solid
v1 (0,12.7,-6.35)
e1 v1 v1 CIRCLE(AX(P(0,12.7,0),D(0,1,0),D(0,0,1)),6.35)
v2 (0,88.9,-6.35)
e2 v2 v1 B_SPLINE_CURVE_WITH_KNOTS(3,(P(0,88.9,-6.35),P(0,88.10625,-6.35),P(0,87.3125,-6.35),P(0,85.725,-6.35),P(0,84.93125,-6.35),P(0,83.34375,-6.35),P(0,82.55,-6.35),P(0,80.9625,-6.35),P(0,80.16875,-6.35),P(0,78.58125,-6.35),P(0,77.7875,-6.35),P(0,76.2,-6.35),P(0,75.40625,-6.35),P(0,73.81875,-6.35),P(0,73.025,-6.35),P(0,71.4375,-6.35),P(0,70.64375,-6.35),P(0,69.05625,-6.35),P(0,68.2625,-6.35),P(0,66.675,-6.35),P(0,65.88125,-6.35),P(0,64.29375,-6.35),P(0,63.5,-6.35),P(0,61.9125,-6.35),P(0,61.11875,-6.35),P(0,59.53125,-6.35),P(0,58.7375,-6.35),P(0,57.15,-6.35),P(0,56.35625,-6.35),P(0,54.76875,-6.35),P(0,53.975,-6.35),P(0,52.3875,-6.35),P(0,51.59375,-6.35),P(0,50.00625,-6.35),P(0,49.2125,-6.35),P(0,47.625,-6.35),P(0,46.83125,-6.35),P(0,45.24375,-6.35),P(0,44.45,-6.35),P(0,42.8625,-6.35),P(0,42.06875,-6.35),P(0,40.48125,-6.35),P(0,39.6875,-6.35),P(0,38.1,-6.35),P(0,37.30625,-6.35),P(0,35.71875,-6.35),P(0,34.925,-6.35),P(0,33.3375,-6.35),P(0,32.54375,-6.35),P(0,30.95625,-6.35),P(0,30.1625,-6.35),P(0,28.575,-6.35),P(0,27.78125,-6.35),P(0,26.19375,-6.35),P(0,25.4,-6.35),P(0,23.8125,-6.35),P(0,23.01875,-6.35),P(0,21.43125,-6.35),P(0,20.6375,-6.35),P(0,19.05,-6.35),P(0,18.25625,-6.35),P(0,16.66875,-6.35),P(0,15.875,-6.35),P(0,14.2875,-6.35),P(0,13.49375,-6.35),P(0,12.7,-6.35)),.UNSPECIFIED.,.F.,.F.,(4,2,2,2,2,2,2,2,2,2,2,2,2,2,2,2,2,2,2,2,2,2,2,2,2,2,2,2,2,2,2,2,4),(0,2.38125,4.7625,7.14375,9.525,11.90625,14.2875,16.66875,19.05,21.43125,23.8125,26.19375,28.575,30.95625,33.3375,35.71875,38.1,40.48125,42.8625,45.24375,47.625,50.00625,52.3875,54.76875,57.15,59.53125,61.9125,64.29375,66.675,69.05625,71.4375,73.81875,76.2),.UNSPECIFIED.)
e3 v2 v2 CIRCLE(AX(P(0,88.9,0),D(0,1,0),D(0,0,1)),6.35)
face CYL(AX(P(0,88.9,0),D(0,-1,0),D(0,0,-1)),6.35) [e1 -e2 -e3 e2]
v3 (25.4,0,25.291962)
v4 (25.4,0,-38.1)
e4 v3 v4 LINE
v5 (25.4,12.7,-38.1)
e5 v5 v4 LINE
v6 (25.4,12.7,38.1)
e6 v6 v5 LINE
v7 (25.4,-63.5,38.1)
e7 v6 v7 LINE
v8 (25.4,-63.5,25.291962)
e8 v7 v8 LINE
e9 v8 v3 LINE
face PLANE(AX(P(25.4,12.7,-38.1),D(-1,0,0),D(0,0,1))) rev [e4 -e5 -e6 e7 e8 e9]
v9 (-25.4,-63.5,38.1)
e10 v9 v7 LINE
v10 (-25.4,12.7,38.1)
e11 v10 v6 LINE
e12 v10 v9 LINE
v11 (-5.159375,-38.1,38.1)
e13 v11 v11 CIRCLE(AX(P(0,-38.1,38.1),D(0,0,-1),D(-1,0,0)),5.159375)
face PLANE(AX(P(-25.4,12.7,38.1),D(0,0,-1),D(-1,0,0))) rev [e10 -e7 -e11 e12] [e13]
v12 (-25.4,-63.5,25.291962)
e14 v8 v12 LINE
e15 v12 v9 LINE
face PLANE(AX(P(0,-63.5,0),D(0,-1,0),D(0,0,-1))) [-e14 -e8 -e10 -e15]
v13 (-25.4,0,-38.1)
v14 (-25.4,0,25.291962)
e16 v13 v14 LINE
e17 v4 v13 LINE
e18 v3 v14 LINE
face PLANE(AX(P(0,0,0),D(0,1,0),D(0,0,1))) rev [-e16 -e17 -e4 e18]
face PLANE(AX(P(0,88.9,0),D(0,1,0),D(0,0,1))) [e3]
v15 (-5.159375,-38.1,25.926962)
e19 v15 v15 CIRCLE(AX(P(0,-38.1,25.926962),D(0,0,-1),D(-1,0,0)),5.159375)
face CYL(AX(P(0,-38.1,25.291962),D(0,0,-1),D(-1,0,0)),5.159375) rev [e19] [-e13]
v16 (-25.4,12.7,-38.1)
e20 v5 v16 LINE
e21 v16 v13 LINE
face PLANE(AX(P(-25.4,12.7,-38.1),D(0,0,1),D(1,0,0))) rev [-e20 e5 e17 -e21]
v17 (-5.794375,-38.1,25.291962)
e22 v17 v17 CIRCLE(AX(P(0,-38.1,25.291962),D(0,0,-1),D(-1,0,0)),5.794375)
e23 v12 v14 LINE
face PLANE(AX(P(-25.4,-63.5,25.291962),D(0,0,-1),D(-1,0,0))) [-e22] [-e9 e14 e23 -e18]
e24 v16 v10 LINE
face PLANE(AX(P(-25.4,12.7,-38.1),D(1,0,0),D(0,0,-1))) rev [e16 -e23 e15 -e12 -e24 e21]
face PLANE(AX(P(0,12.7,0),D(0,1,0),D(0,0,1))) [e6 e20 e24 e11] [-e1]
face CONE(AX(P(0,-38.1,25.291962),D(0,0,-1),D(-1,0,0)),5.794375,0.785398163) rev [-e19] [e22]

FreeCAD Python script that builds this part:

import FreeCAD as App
import Part
import Sketcher

V = App.Vector
Q = App.Units.Quantity

doc = App.newDocument("Part")
body = doc.addObject("PartDesign::Body", "Body")

# Sketch on XZ plane
sketch1 = body.newObject("Sketcher::SketchObject", "Sketch")
sketch1.AttachmentSupport = (doc.getObject("XZ_Plane"), [""])
sketch1.MapMode = "FlatFace"
sketch1.addGeometry(Part.LineSegment(V(-25.4, -38.1, 0), V(-25.4, 38.1, 0)), False)
sketch1.addGeometry(Part.LineSegment(V(-25.4, 38.1, 0), V(25.4, 38.1, 0)), False)
sketch1.addGeometry(Part.LineSegment(V(25.4, 38.1, 0), V(25.4, -38.1, 0)), False)
sketch1.addGeometry(Part.LineSegment(V(25.4, -38.1, 0), V(-25.4, -38.1, 0)), False)
sketch1.addConstraint(Sketcher.Constraint("Coincident", 0, 2, 1, 1))
sketch1.addConstraint(Sketcher.Constraint("Coincident", 1, 2, 2, 1))
sketch1.addConstraint(Sketcher.Constraint("Coincident", 2, 2, 3, 1))
sketch1.addConstraint(Sketcher.Constraint("Coincident", 3, 2, 0, 1))
sketch1.addConstraint(Sketcher.Constraint("Vertical", 0))
sketch1.addConstraint(Sketcher.Constraint("Horizontal", 1))
sketch1.addConstraint(Sketcher.Constraint("Vertical", 2))
sketch1.addConstraint(Sketcher.Constraint("Horizontal", 3))
sketch1.addConstraint(Sketcher.Constraint("Symmetric", 0, 2, 2, 2, -1, 1))
sketch1.addConstraint(Sketcher.Constraint("DistanceX", 1, 1, 1, 2, Q("2 in")))
sketch1.addConstraint(Sketcher.Constraint("DistanceY", 0, 1, 0, 2, Q("3 in")))
pad1 = body.newObject("PartDesign::Pad", "Pad")
pad1.Profile = sketch1
pad1.Length = Q("0.5 in")
pad1.Reversed = True

# Sketch on XZ plane
sketch2 = body.newObject("Sketcher::SketchObject", "Sketch001")
sketch2.AttachmentSupport = (doc.getObject("XZ_Plane"), [""])
sketch2.MapMode = "FlatFace"
sketch2.AttachmentOffset = App.Placement(V(0, 0, -0.5 * 25.4), App.Rotation())
sketch2.addGeometry(Part.Circle(V(0, 0, 0), V(0, 0, 1), 6.35), False)
sketch2.addConstraint(Sketcher.Constraint("Coincident", 0, 3, -1, 1))
sketch2.addConstraint(Sketcher.Constraint("Diameter", 0, Q("0.5 in")))
pad2 = body.newObject("PartDesign::Pad", "Pad001")
pad2.Profile = sketch2
pad2.Length = Q("3 in")
pad2.Reversed = True

# Sketch on XZ plane
sketch3 = body.newObject("Sketcher::SketchObject", "Sketch002")
sketch3.AttachmentSupport = (doc.getObject("XZ_Plane"), [""])
sketch3.MapMode = "FlatFace"
sketch3.AttachmentOffset = App.Placement(V(0, 0, -0.5 * 25.4), App.Rotation())
sketch3.addGeometry(Part.LineSegment(V(-25.4, 25.291962, 0), V(-25.4, 38.1, 0)), False)
sketch3.addGeometry(Part.LineSegment(V(-25.4, 38.1, 0), V(25.4, 38.1, 0)), False)
sketch3.addGeometry(Part.LineSegment(V(25.4, 38.1, 0), V(25.4, 25.291962, 0)), False)
sketch3.addGeometry(Part.LineSegment(V(25.4, 25.291962, 0), V(-25.4, 25.291962, 0)), False)
sketch3.addConstraint(Sketcher.Constraint("Coincident", 0, 2, 1, 1))
sketch3.addConstraint(Sketcher.Constraint("Coincident", 1, 2, 2, 1))
sketch3.addConstraint(Sketcher.Constraint("Coincident", 2, 2, 3, 1))
sketch3.addConstraint(Sketcher.Constraint("Coincident", 3, 2, 0, 1))
sketch3.addConstraint(Sketcher.Constraint("Vertical", 0))
sketch3.addConstraint(Sketcher.Constraint("Horizontal", 1))
sketch3.addConstraint(Sketcher.Constraint("Vertical", 2))
sketch3.addConstraint(Sketcher.Constraint("Horizontal", 3))
sketch3.addConstraint(Sketcher.Constraint("DistanceX", 1, 1, 1, 2, Q("2 in")))
sketch3.addConstraint(Sketcher.Constraint("DistanceX", 0, 2, -1, 1, Q("1 in")))
sketch3.addConstraint(Sketcher.Constraint("DistanceY", -1, 1, 0, 2, Q("1.5 in")))
sketch3.addConstraint(Sketcher.Constraint("DistanceY", 0, 1, 0, 2, 12.808038))
pad3 = body.newObject("PartDesign::Pad", "Pad002")
pad3.Profile = sketch3
pad3.Length = Q("3 in")

# Sketch on XY plane
sketch4 = body.newObject("Sketcher::SketchObject", "Sketch003")
sketch4.AttachmentSupport = (doc.getObject("XY_Plane"), [""])
sketch4.MapMode = "FlatFace"
sketch4.AttachmentOffset = App.Placement(V(0, 0, 25.291962), App.Rotation())
sketch4.addGeometry(Part.Circle(V(0, -38.1, 0), V(0, 0, 1), 5.159375), False)
sketch4.addConstraint(Sketcher.Constraint("PointOnObject", 0, 3, -2))
sketch4.addConstraint(Sketcher.Constraint("Diameter", 0, Q("0.40625 in")))
sketch4.addConstraint(Sketcher.Constraint("DistanceY", 0, 3, -1, 1, Q("1.5 in")))
doc.recompute()
hole = body.newObject("PartDesign::Hole", "Hole")
hole.Profile = sketch4
hole.ThreadType = "None"
hole.Diameter = Q("0.40625 in")
hole.DepthType = "ThroughAll"
hole.HoleCutType = "Countersink"
hole.HoleCutDiameter = 11.58875
hole.HoleCutCountersinkAngle = 90
hole.Reversed = True

doc.recompute()
